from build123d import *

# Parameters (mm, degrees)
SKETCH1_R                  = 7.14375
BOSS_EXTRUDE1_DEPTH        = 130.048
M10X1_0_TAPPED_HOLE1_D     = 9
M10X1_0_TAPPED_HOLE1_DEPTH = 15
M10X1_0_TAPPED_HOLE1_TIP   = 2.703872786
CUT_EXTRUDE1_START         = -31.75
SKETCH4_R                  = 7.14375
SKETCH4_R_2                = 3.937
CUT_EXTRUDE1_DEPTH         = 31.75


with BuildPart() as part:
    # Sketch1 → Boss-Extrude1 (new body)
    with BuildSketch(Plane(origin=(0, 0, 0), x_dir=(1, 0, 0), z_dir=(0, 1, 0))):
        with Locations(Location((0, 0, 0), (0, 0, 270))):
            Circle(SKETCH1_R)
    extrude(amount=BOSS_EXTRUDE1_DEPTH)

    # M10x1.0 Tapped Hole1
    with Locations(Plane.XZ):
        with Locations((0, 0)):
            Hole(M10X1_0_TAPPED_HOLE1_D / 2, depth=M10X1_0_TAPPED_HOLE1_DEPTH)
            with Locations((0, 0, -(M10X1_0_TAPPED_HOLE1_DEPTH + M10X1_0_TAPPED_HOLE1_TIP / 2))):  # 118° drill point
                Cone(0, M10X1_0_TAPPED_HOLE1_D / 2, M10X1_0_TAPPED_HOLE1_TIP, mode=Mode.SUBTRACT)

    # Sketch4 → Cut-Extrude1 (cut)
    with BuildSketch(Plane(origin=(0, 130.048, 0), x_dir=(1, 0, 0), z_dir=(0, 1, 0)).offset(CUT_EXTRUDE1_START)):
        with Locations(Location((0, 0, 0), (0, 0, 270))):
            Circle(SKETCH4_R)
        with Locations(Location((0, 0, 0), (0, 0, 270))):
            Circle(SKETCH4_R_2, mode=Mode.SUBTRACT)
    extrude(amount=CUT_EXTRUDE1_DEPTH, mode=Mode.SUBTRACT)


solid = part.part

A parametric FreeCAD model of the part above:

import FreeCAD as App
import Part
import Sketcher

V = App.Vector
Q = App.Units.Quantity

doc = App.newDocument("Part")
body = doc.addObject("PartDesign::Body", "Body")

# Sketch on XZ plane
sketch1 = body.newObject("Sketcher::SketchObject", "Sketch")
sketch1.AttachmentSupport = (doc.getObject("XZ_Plane"), [""])
sketch1.MapMode = "FlatFace"
sketch1.addGeometry(Part.Circle(V(0, 0, 0), V(0, 0, 1), 7.14375), False)
sketch1.addConstraint([
    Sketcher.Constraint("Coincident", 0, 3, -1, 1),
    Sketcher.Constraint("Diameter", 0, Q("0.5625 in")),
])
pad1 = body.newObject("PartDesign::Pad", "Pad")
pad1.Profile = sketch1
pad1.Length = Q("5.12 in")
pad1.Reversed = True

# Sketch on XZ plane
sketch2 = body.newObject("Sketcher::SketchObject", "Sketch001")
sketch2.AttachmentSupport = (doc.getObject("XZ_Plane"), [""])
sketch2.MapMode = "FlatFace"
sketch2.addGeometry(Part.Circle(V(0, 0, 0), V(0, 0, 1), 4.5), False)
sketch2.addConstraint([
    Sketcher.Constraint("Coincident", 0, 3, -1, 1),
    Sketcher.Constraint("Diameter", 0, Q("9 mm")),
])
doc.recompute()
hole = body.newObject("PartDesign::Hole", "Hole")
hole.Profile = sketch2
hole.ThreadType = "None"
hole.Diameter = 9
hole.DepthType = "Dimension"
hole.Depth = 15
hole.DrillPoint = "Angled"
hole.DrillPointAngle = 118

# Sketch on XZ plane
sketch3 = body.newObject("Sketcher::SketchObject", "Sketch002")
sketch3.AttachmentSupport = (doc.getObject("XZ_Plane"), [""])
sketch3.MapMode = "FlatFace"
sketch3.AttachmentOffset = App.Placement(V(0, 0, -3.87 * 25.4), App.Rotation())
sketch3.addGeometry([
    Part.Circle(V(0, 0, 0), V(0, 0, 1), 7.14375),
    Part.Circle(V(0, 0, 0), V(0, 0, 1), 3.937),
], False)
sketch3.addConstraint([
    Sketcher.Constraint("Coincident", 0, 3, -1, 1),
    Sketcher.Constraint("Coincident", 1, 3, -1, 1),
    Sketcher.Constraint("Diameter", 1, Q("0.31 in")),
    Sketcher.Constraint("Diameter", 0, Q("0.5625 in")),
])
pocket1 = body.newObject("PartDesign::Pocket", "Pocket")
pocket1.Profile = sketch3
pocket1.Length = Q("1.25 in")

doc.recompute()
